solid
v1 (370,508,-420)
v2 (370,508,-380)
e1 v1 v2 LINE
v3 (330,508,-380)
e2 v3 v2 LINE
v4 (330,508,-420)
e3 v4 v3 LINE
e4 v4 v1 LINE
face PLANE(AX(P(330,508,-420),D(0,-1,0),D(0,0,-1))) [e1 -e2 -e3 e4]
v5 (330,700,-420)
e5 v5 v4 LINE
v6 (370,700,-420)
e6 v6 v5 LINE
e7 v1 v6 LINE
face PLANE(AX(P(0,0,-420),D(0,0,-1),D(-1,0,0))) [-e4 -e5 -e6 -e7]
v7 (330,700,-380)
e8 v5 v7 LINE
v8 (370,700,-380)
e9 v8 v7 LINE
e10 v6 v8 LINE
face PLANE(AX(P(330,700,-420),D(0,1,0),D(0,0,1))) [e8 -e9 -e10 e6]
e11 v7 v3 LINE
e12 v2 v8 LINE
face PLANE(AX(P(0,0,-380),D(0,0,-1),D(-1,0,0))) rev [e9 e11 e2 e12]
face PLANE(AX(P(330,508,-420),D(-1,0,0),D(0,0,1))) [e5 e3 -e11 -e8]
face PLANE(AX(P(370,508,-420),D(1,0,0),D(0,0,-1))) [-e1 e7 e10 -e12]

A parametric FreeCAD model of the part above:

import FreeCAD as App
import Part
import Sketcher
Q = App.Units.Quantity

doc = App.newDocument("Part")
body = doc.addObject("PartDesign::Body", "Body")

sketch1 = body.newObject("Sketcher::SketchObject", "Sketch")
sketch1.AttachmentSupport = (doc.getObject("XY_Plane"), [""])
sketch1.MapMode = "FlatFace"
sketch1.AttachmentOffset = App.Placement(App.Vector(0, 0, -380), App.Rotation())
sketch1.addGeometry([
    Part.LineSegment(App.Vector(330, 700, 0), App.Vector(330, 508, 0)),
    Part.LineSegment(App.Vector(330, 508, 0), App.Vector(370, 508, 0)),
    Part.LineSegment(App.Vector(370, 508, 0), App.Vector(370, 700, 0)),
    Part.LineSegment(App.Vector(370, 700, 0), App.Vector(330, 700, 0)),
], False)
sketch1.addConstraint([
    Sketcher.Constraint("Coincident", 0, 2, 1, 1),
    Sketcher.Constraint("Coincident", 1, 2, 2, 1),
    Sketcher.Constraint("Coincident", 2, 2, 3, 1),
    Sketcher.Constraint("Coincident", 3, 2, 0, 1),
    Sketcher.Constraint("Vertical", 0),
    Sketcher.Constraint("Horizontal", 1),
    Sketcher.Constraint("Vertical", 2),
    Sketcher.Constraint("Horizontal", 3),
    Sketcher.Constraint("DistanceX", 1, 1, 1, 2, Q("40 mm")),
    Sketcher.Constraint("DistanceY", 0, 2, 0, 1, Q("192 mm")),
    Sketcher.Constraint("DistanceX", -1, 1, 0, 2, Q("330 mm")),
    Sketcher.Constraint("DistanceY", -1, 1, 0, 2, Q("508 mm")),
])
pad1 = body.newObject("PartDesign::Pad", "Pad")
pad1.Profile = sketch1
pad1.Length = 40
pad1.Reversed = True

doc.recompute()
